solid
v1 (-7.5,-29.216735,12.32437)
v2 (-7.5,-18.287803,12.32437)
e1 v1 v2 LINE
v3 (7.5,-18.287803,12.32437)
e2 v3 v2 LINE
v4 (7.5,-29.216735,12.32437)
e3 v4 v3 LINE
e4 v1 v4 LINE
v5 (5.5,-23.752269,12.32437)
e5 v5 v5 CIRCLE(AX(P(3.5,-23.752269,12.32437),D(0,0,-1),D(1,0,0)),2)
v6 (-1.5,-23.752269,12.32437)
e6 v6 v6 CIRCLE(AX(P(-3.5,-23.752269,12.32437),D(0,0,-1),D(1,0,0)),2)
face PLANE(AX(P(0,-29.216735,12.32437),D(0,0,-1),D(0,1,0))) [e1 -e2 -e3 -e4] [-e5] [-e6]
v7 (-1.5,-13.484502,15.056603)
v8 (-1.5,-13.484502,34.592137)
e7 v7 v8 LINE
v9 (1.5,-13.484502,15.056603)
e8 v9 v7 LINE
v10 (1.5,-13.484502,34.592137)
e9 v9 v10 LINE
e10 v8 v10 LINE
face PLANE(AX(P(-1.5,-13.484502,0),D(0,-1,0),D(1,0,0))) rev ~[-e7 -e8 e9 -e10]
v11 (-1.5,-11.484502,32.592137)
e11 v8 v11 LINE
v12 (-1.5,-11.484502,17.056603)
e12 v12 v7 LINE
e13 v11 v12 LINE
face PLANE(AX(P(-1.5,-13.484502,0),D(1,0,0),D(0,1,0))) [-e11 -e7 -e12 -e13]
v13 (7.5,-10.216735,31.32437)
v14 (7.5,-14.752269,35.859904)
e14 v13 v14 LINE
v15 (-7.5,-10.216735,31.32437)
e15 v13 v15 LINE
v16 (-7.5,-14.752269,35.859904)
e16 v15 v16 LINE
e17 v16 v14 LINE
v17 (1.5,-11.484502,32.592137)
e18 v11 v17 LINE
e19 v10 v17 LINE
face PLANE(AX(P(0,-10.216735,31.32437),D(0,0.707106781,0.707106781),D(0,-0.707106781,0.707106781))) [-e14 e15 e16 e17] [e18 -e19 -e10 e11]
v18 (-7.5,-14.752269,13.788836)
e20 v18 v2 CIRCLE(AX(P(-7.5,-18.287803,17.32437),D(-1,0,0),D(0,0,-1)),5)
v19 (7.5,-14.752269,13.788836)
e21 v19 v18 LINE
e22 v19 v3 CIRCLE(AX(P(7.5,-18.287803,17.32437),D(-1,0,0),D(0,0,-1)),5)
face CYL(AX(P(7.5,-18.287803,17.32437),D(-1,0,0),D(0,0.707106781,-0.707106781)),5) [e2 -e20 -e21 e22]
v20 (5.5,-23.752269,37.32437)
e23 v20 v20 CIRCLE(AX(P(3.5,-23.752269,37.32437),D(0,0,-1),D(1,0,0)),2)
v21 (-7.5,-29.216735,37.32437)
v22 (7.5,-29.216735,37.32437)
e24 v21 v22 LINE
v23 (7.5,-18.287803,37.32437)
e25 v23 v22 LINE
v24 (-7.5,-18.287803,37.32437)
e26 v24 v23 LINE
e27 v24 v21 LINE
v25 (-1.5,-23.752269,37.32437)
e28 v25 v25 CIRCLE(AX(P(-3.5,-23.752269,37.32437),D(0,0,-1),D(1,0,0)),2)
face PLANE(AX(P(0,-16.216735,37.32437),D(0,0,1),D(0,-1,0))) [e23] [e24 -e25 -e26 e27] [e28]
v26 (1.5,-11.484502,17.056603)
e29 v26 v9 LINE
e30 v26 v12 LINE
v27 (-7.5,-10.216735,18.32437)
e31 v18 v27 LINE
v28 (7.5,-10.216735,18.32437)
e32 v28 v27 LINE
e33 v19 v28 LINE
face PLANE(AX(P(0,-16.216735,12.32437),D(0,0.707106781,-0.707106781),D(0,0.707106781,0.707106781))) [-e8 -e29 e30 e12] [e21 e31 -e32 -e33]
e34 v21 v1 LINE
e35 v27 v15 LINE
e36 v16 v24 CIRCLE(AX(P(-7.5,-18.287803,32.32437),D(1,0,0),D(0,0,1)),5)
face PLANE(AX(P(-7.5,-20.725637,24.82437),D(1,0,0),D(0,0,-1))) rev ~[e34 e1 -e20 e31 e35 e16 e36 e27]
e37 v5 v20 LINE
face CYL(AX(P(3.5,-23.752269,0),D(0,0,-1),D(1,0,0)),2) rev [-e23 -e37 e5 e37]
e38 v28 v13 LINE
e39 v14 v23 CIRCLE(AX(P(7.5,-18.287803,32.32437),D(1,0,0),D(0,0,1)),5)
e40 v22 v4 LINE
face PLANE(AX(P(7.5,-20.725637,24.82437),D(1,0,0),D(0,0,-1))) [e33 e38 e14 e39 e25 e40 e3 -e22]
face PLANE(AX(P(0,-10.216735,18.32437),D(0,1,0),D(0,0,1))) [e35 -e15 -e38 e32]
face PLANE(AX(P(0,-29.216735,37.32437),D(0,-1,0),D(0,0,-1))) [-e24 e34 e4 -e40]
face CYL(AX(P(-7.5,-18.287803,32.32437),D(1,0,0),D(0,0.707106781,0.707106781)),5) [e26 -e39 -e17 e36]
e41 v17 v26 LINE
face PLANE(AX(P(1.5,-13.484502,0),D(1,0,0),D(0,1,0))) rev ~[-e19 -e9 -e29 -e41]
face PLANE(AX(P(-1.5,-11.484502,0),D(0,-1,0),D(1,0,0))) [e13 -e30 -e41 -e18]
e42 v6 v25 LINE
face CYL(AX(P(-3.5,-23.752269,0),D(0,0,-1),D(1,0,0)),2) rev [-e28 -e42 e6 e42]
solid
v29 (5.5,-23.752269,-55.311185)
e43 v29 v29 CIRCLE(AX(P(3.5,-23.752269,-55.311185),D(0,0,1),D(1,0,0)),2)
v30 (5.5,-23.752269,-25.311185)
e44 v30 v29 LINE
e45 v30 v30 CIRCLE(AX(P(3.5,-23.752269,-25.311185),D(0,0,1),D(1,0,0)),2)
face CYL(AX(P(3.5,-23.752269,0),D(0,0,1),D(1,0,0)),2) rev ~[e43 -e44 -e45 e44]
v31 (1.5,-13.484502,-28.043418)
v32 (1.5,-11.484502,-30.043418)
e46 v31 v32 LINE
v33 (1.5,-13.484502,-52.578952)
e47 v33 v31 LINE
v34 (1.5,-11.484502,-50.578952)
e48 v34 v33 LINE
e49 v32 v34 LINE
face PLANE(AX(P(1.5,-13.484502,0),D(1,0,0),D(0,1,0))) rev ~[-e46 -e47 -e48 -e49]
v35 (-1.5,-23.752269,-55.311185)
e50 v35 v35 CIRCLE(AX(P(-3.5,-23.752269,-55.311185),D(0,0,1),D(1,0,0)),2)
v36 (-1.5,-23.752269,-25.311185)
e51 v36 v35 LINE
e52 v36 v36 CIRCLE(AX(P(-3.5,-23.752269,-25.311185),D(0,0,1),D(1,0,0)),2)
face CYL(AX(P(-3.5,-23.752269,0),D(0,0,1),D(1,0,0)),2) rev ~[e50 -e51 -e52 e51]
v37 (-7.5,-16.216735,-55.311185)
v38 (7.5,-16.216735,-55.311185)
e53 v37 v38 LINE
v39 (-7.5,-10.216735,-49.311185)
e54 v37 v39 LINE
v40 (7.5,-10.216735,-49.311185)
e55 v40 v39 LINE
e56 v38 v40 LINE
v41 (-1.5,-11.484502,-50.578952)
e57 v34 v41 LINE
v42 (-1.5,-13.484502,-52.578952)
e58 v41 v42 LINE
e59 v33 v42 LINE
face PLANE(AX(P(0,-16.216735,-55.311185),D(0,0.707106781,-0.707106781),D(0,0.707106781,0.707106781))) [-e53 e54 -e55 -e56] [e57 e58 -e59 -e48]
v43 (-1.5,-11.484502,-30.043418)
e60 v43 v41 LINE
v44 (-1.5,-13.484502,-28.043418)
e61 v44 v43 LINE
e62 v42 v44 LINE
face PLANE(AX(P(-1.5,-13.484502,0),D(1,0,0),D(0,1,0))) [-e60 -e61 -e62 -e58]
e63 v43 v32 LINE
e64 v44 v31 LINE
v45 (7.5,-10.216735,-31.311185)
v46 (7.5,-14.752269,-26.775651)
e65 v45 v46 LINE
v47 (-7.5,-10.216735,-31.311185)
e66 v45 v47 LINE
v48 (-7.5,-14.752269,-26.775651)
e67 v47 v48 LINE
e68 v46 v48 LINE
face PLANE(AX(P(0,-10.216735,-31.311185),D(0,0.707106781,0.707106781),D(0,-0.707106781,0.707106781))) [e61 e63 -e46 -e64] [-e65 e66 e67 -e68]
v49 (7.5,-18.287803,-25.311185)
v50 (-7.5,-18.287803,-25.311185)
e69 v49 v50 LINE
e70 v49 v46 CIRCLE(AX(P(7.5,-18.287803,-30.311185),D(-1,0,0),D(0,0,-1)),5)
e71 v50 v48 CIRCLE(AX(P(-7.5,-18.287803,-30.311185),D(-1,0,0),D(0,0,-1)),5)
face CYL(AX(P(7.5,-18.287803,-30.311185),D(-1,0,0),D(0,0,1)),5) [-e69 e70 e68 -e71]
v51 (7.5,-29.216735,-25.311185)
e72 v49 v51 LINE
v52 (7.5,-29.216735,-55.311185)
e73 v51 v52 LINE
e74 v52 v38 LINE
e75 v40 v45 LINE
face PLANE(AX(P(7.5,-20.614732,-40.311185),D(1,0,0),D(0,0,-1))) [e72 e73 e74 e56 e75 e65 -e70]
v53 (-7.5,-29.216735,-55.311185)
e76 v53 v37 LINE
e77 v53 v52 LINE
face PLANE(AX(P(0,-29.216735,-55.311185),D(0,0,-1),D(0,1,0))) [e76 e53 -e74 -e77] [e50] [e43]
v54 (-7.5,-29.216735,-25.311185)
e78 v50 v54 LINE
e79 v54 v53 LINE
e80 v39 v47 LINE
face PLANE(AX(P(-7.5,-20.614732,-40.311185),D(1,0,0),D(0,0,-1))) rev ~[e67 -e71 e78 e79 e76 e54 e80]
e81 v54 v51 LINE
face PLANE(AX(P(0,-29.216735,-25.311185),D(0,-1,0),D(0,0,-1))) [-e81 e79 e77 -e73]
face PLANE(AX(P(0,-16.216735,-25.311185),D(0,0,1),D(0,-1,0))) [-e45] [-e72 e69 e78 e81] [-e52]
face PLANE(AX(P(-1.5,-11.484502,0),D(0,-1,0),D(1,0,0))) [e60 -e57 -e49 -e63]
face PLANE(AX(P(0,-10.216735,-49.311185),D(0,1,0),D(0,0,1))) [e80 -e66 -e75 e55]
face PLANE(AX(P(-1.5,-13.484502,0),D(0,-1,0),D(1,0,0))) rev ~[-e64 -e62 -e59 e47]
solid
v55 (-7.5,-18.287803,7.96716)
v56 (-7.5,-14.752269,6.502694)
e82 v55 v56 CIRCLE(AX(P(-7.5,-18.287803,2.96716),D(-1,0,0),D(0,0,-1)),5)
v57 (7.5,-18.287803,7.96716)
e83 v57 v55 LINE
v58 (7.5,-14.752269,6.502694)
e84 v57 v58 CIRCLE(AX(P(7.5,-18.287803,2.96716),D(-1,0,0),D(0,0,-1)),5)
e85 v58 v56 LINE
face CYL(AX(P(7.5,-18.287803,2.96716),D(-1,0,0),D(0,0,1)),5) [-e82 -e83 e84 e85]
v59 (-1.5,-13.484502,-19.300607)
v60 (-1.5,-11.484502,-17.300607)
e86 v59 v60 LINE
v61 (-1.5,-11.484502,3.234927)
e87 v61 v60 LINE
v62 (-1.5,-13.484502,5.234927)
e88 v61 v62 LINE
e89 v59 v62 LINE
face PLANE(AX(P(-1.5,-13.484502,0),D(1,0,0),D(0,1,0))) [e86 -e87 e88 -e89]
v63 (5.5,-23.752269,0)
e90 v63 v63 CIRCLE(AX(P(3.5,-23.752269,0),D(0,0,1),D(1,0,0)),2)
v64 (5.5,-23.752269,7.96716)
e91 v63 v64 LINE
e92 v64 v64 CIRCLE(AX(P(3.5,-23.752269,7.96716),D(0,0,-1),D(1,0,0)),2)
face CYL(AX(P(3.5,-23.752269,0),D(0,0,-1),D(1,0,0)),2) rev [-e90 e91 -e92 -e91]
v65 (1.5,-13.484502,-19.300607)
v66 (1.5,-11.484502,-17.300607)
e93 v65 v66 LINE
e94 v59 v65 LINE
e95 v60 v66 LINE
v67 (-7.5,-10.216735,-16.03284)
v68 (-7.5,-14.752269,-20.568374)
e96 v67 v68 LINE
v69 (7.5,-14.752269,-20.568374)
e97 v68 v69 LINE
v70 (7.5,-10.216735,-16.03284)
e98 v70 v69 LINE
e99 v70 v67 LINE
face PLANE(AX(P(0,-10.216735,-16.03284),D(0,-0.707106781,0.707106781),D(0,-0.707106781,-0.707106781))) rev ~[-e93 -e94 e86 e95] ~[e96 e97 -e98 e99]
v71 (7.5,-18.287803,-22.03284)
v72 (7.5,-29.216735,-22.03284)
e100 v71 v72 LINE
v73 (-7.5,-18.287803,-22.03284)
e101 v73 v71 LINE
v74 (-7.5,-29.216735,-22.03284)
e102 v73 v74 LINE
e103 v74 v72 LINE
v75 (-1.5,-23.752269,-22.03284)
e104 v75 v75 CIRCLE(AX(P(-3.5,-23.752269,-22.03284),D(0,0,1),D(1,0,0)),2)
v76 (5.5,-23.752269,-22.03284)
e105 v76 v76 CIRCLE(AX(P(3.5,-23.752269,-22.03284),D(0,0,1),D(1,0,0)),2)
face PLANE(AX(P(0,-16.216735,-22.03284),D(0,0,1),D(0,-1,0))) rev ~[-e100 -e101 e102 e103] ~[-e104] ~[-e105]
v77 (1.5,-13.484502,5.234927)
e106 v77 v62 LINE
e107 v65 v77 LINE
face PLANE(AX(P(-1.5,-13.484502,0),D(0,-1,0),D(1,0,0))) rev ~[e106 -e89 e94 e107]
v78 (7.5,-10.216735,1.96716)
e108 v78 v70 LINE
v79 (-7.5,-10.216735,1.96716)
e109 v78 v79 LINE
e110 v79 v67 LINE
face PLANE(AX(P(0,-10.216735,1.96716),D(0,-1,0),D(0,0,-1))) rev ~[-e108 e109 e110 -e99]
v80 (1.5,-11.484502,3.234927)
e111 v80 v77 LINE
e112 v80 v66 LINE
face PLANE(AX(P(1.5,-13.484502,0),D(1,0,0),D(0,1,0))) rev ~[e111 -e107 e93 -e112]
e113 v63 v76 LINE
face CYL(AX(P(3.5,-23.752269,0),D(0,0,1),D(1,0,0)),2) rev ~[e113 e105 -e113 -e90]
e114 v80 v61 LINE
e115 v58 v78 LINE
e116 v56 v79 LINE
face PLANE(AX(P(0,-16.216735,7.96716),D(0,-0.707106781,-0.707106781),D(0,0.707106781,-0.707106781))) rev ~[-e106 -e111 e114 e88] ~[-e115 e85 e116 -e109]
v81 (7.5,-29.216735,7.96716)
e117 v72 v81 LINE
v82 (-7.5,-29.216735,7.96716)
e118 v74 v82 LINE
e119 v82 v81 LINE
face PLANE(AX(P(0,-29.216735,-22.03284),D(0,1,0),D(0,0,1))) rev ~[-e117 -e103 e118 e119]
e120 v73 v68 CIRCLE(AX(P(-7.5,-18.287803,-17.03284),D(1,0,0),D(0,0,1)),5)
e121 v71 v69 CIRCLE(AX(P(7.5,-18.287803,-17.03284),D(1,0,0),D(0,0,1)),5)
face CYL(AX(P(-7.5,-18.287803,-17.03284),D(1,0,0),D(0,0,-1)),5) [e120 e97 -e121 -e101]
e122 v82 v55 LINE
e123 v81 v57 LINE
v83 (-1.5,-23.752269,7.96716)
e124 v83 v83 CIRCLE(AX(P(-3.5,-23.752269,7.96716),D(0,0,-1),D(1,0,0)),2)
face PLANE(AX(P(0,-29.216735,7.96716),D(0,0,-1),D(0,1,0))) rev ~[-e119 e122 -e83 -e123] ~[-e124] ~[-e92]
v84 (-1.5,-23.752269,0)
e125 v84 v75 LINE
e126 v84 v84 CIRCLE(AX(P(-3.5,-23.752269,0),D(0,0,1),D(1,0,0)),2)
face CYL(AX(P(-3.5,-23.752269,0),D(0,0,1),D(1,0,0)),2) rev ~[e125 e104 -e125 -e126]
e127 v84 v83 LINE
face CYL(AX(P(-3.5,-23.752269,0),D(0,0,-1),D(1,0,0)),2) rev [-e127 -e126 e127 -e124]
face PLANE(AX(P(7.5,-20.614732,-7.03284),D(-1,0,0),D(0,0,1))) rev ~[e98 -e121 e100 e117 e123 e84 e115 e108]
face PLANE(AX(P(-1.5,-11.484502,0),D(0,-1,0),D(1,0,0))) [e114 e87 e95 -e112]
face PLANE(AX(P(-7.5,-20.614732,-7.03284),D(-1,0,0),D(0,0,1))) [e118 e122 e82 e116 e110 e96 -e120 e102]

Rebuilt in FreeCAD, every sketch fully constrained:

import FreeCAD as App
import Part
import Sketcher
from FreeCAD import Vector
Q = App.Units.Quantity


def edges_at(feature, points):
    """Names of the edges that pass closest to the given points."""
    edges = feature.Shape.Edges
    near = lambda p: min(range(len(edges)), key=lambda i: edges[i].distToShape(Part.Vertex(*p))[0])
    return sorted({f"Edge{near(p) + 1}" for p in points})


def add_polygon(sketch, points):
    """Adds a closed chain of lines whose ends are joined by coincident constraints."""
    first, n = sketch.GeometryCount, len(points)
    for a, b in zip(points, points[1:] + points[:1]):
        sketch.addGeometry(Part.LineSegment(App.Vector(*a, 0), App.Vector(*b, 0)), False)
    for i in range(n):
        sketch.addConstraint(Sketcher.Constraint("Coincident", first + i, 2, first + (i + 1) % n, 1))

doc = App.newDocument("Part")
params = doc.addObject("Spreadsheet::Sheet", "Params")
for row, (alias, value) in enumerate([
    ("sketch1_width", "13 mm"),
    ("sketch1_height", "25 mm"),
    ("pad1_length", "15 mm"),
    ("fillet_radius", "5 mm"),
    ("sketch2_width", "13 mm"),
    ("sketch2_height", "30 mm"),
    ("sketch2_height2", "18 mm"),
    ("pad2_length", "15 mm"),
    ("fillet2_radius", "5 mm"),
    ("sketch3_width", "13 mm"),
    ("sketch3_height", "30 mm"),
    ("sketch3_height2", "18 mm"),
    ("pad3_length", "15 mm"),
    ("fillet3_radius", "5 mm"),
    ("sketch4_diameter", "4 mm"),
    ("sketch4_width", "3 mm"),
    ("sketch4_height", "2 mm"),
    ("pad4_length", "200 mm"),
], start=1):
    params.set(f"A{row}", alias)
    params.set(f"B{row}", "=" + value)
    params.setAlias(f"B{row}", alias)

body = doc.addObject("PartDesign::Body", "Body")

# Sketch on YZ plane
sketch1 = doc.addObject("Sketcher::SketchObject", "Sketch")
body.addObject(sketch1)
sketch1.AttachmentSupport = (doc.YZ_Plane, [""])
sketch1.MapMode = "FlatFace"
add_polygon(sketch1, [(-10, 31), (-16, 37), (-29, 37), (-29, 12), (-16, 12), (-10, 18)])  # lines 0-5
sketch1.addConstraint([
    Sketcher.Constraint("Horizontal", 1),
    Sketcher.Constraint("Vertical", 2),
    Sketcher.Constraint("Horizontal", 3),
    Sketcher.Constraint("Vertical", 5),
    Sketcher.Constraint("Perpendicular", 0, 4),
    Sketcher.Constraint("Vertical", 0, 2, 3, 2),
    Sketcher.Constraint("Equal", 3, 5),
    Sketcher.Constraint("Equal", 0, 4),
    Sketcher.Constraint("DistanceX", 1, 2, 1, 1, Q("13 mm")),
    Sketcher.Constraint("DistanceY", 2, 2, 2, 1, Q("25 mm")),
    Sketcher.Constraint("DistanceY", -1, 1, 0, 2, Q("37.32437 mm")),
    Sketcher.Constraint("DistanceX", 0, 2, -1, 1, Q("16.216735 mm")),
])
sketch1.setExpression("Constraints[14]", "Params.sketch1_width")
sketch1.setExpression("Constraints[15]", "Params.sketch1_height")
pad1 = doc.addObject("PartDesign::Pad", "Pad")
body.addObject(pad1)
pad1.Profile = sketch1
pad1.setExpression("Length", "Params.pad1_length")
pad1.Midplane = True
doc.recompute()

fillet = doc.addObject("PartDesign::Fillet", "Fillet")
body.addObject(fillet)
fillet.Base = (pad1, edges_at(pad1, [(0, -16.217, 12.324), (0, -16.217, 37.324)]))
fillet.setExpression("Radius", "Params.fillet_radius")
body2 = doc.addObject("PartDesign::Body", "Body001")

# Sketch on YZ plane
sketch2 = doc.addObject("Sketcher::SketchObject", "Sketch001")
body2.addObject(sketch2)
sketch2.AttachmentSupport = (doc.getObject("YZ_Plane001"), [""])
sketch2.MapMode = "FlatFace"
add_polygon(sketch2, [(-16, 8), (-29, 8), (-29, -22), (-16, -22), (-10, -16), (-10, 2)])  # lines 0-5
sketch2.addConstraint([
    Sketcher.Constraint("Horizontal", 0),
    Sketcher.Constraint("Vertical", 1),
    Sketcher.Constraint("Horizontal", 2),
    Sketcher.Constraint("Vertical", 4),
    Sketcher.Constraint("Perpendicular", 3, 5),
    Sketcher.Constraint("Vertical", 2, 2, 5, 2),
    Sketcher.Constraint("Equal", 3, 5),
    Sketcher.Constraint("DistanceX", 0, 2, 0, 1, Q("13 mm")),
    Sketcher.Constraint("DistanceY", 1, 2, 1, 1, Q("30 mm")),
    Sketcher.Constraint("DistanceY", 4, 1, 4, 2, Q("18 mm")),
    Sketcher.Constraint("DistanceY", -1, 1, 0, 2, Q("7.96716 mm")),
    Sketcher.Constraint("DistanceX", 0, 2, -1, 1, Q("29.216735 mm")),
])
sketch2.setExpression("Constraints[13]", "Params.sketch2_width")
sketch2.setExpression("Constraints[14]", "Params.sketch2_height")
sketch2.setExpression("Constraints[15]", "Params.sketch2_height2")
pad2 = doc.addObject("PartDesign::Pad", "Pad001")
body2.addObject(pad2)
pad2.Profile = sketch2
pad2.setExpression("Length", "Params.pad2_length")
pad2.Midplane = True
doc.recompute()

fillet2 = doc.addObject("PartDesign::Fillet", "Fillet001")
body2.addObject(fillet2)
fillet2.Base = (pad2, edges_at(pad2, [(0, -16.217, 7.967), (0, -16.217, -22.033)]))
fillet2.setExpression("Radius", "Params.fillet2_radius")
body3 = doc.addObject("PartDesign::Body", "Body002")

# Sketch on YZ plane
sketch3 = doc.addObject("Sketcher::SketchObject", "Sketch002")
body3.addObject(sketch3)
sketch3.AttachmentSupport = (doc.getObject("YZ_Plane002"), [""])
sketch3.MapMode = "FlatFace"
add_polygon(sketch3, [(-16, -25), (-29, -25), (-29, -55), (-16, -55), (-10, -49), (-10, -31)])  # lines 0-5
sketch3.addConstraint([
    Sketcher.Constraint("Horizontal", 0),
    Sketcher.Constraint("Vertical", 1),
    Sketcher.Constraint("Horizontal", 2),
    Sketcher.Constraint("Vertical", 4),
    Sketcher.Constraint("Perpendicular", 3, 5),
    Sketcher.Constraint("Vertical", 2, 2, 5, 2),
    Sketcher.Constraint("Equal", 3, 5),
    Sketcher.Constraint("DistanceX", 0, 2, 0, 1, Q("13 mm")),
    Sketcher.Constraint("DistanceY", 1, 2, 1, 1, Q("30 mm")),
    Sketcher.Constraint("DistanceY", 4, 1, 4, 2, Q("18 mm")),
    Sketcher.Constraint("DistanceX", 0, 2, -1, 1, Q("29.216735 mm")),
    Sketcher.Constraint("DistanceY", 0, 2, -1, 1, Q("25.311185 mm")),
])
sketch3.setExpression("Constraints[13]", "Params.sketch3_width")
sketch3.setExpression("Constraints[14]", "Params.sketch3_height")
sketch3.setExpression("Constraints[15]", "Params.sketch3_height2")
pad3 = doc.addObject("PartDesign::Pad", "Pad002")
body3.addObject(pad3)
pad3.Profile = sketch3
pad3.setExpression("Length", "Params.pad3_length")
pad3.Midplane = True
doc.recompute()

fillet3 = doc.addObject("PartDesign::Fillet", "Fillet002")
body3.addObject(fillet3)
fillet3.Base = (pad3, edges_at(pad3, [(0, -16.217, -25.311)]))
fillet3.setExpression("Radius", "Params.fillet3_radius")
body4 = doc.addObject("PartDesign::Body", "Body003")
body4.AllowCompound = True

# Sketch on XY plane
sketch4 = doc.addObject("Sketcher::SketchObject", "Sketch003")
body4.addObject(sketch4)
sketch4.AttachmentSupport = (doc.getObject("XY_Plane003"), [""])
sketch4.MapMode = "FlatFace"
sketch4.addGeometry(Part.Circle(Vector(-3.5, -23.8, 0), Vector(0, 0, 1), 2), False)  # 0
sketch4.addGeometry(Part.Circle(Vector(3.5, -23.8, 0), Vector(0, 0, 1), 2), False)  # 1
add_polygon(sketch4, [(-1.5, -11.5), (-1.5, -13.5), (1.5, -13.5), (1.5, -11.5)])  # lines 2-5
sketch4.addConstraint([
    Sketcher.Constraint("Vertical", 2),
    Sketcher.Constraint("Horizontal", 3),
    Sketcher.Constraint("Vertical", 4),
    Sketcher.Constraint("Horizontal", 5),
    Sketcher.Constraint("Equal", 0, 1),
    Sketcher.Constraint("Symmetric", 0, 3, 1, 3, -2),
    Sketcher.Constraint("Diameter", 0, Q("4 mm")),
    Sketcher.Constraint("DistanceX", 3, 1, 3, 2, Q("3 mm")),
    Sketcher.Constraint("DistanceY", 2, 2, 2, 1, Q("2 mm")),
    Sketcher.Constraint("DistanceX", 0, 3, 1, 3, Q("7 mm")),
    Sketcher.Constraint("DistanceX", 0, 3, 2, 2, Q("2 mm")),
    Sketcher.Constraint("DistanceY", 2, 2, -1, 1, Q("13.484502 mm")),
    Sketcher.Constraint("DistanceY", 0, 3, -1, 1, Q("23.752269 mm")),
])
sketch4.setExpression("Constraints[10]", "Params.sketch4_diameter")
sketch4.setExpression("Constraints[11]", "Params.sketch4_width")
sketch4.setExpression("Constraints[12]", "Params.sketch4_height")
pad4 = doc.addObject("PartDesign::Pad", "Pad003")
body4.addObject(pad4)
pad4.Profile = sketch4
pad4.setExpression("Length", "Params.pad4_length")
pad4.Midplane = True
doc.recompute()

body5 = doc.addObject("PartDesign::Body", "Body004")
body5.BaseFeature = body4
boolean = doc.addObject("PartDesign::Boolean", "Boolean")
body.addObject(boolean)
boolean.Type = "Cut"
boolean.addObjects([body5])
doc.recompute()

body6 = doc.addObject("PartDesign::Body", "Body005")
body6.BaseFeature = body4
boolean2 = doc.addObject("PartDesign::Boolean", "Boolean001")
body2.addObject(boolean2)
boolean2.Type = "Cut"
boolean2.addObjects([body6])
doc.recompute()

boolean3 = doc.addObject("PartDesign::Boolean", "Boolean002")
body3.addObject(boolean3)
boolean3.Type = "Cut"
boolean3.addObjects([body4])

doc.recompute()
